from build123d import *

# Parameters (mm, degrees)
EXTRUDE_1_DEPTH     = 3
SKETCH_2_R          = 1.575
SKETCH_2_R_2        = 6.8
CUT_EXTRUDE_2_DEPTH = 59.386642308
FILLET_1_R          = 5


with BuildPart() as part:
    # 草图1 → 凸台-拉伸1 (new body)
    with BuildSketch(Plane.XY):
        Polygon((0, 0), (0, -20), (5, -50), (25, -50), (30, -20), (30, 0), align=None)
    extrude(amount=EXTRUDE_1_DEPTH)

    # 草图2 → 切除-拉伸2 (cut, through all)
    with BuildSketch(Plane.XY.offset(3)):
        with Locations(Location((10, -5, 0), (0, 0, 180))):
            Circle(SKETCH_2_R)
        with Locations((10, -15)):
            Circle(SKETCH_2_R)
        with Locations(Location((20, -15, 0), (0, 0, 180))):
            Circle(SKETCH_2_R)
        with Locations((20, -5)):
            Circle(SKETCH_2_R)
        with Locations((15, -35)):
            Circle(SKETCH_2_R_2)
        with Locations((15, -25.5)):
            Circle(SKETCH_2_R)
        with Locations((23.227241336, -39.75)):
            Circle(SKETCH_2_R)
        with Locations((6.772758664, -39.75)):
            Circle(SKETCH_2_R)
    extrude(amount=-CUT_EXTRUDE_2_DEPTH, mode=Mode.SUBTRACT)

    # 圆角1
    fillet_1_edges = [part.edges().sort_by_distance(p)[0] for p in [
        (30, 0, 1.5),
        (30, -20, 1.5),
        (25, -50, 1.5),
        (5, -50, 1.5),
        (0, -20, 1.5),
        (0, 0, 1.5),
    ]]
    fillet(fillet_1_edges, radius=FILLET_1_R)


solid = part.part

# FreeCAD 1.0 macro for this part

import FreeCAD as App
import Part
import Sketcher
Q = App.Units.Quantity


def edges_at(feature, points):
    """Names of the edges that pass closest to the given points."""
    edges = feature.Shape.Edges
    near = lambda p: min(range(len(edges)), key=lambda i: edges[i].distToShape(Part.Vertex(*p))[0])
    return sorted({f"Edge{near(p) + 1}" for p in points})


def add_polygon(sketch, points):
    """Adds a closed chain of lines whose ends are joined by coincident constraints."""
    first, n = sketch.GeometryCount, len(points)
    for a, b in zip(points, points[1:] + points[:1]):
        sketch.addGeometry(Part.LineSegment(App.Vector(*a, 0), App.Vector(*b, 0)), False)
    for i in range(n):
        sketch.addConstraint(Sketcher.Constraint("Coincident", first + i, 2, first + (i + 1) % n, 1))

doc = App.newDocument("Part")
params = doc.addObject("Spreadsheet::Sheet", "Params")
for row, (alias, value) in enumerate([
    ("sketch1_width", "20 mm"),
    ("sketch1_width2", "30 mm"),
    ("pad1_length", "3 mm"),
    ("sketch2_diameter", "13.6 mm"),
    ("sketch2_diameter2", "3.15 mm"),
    ("fillet_radius", "5 mm"),
], start=1):
    params.set(f"A{row}", alias)
    params.set(f"B{row}", "=" + value)
    params.setAlias(f"B{row}", alias)

body = doc.addObject("PartDesign::Body", "Body")

sketch1 = doc.addObject("Sketcher::SketchObject", "Sketch")
body.addObject(sketch1)
sketch1.AttachmentSupport = (doc.XY_Plane, [""])
sketch1.MapMode = "FlatFace"
add_polygon(sketch1, [(0, 0), (0, -20), (5, -50), (25, -50), (30, -20), (30, 0)])
sketch1.addConstraint([
    Sketcher.Constraint("Vertical", 0),
    Sketcher.Constraint("Horizontal", 2),
    Sketcher.Constraint("Vertical", 4),
    Sketcher.Constraint("Horizontal", 5),
    Sketcher.Constraint("Coincident", 5, 2, -1, 1),
    Sketcher.Constraint("Horizontal", 0, 2, 3, 2),
    Sketcher.Constraint("Equal", 2, 0),
    Sketcher.Constraint("Equal", 1, 3),
    Sketcher.Constraint("DistanceX", 2, 1, 2, 2, Q("20 mm")),
    Sketcher.Constraint("DistanceX", 5, 2, 5, 1, Q("30 mm")),
    Sketcher.Constraint("DistanceY", 1, 2, -1, 1, Q("50 mm")),
])
sketch1.setExpression("Constraints[14]", "Params.sketch1_width")
sketch1.setExpression("Constraints[15]", "Params.sketch1_width2")
pad1 = doc.addObject("PartDesign::Pad", "Pad")
body.addObject(pad1)
pad1.Profile = sketch1
pad1.setExpression("Length", "Params.pad1_length")

sketch2 = doc.addObject("Sketcher::SketchObject", "Sketch001")
body.addObject(sketch2)
sketch2.AttachmentSupport = (doc.XY_Plane, [""])
sketch2.MapMode = "FlatFace"
sketch2.AttachmentOffset = App.Placement(App.Vector(0, 0, 3), App.Rotation())
sketch2.addGeometry([
    Part.Circle(App.Vector(10, -5, 0), App.Vector(0, 0, 1), 1.575),
    Part.Circle(App.Vector(10, -15, 0), App.Vector(0, 0, 1), 1.575),
    Part.Circle(App.Vector(20, -15, 0), App.Vector(0, 0, 1), 1.575),
    Part.Circle(App.Vector(20, -5, 0), App.Vector(0, 0, 1), 1.575),
    Part.Circle(App.Vector(15, -35, 0), App.Vector(0, 0, 1), 6.8),
    Part.Circle(App.Vector(15, -25.5, 0), App.Vector(0, 0, 1), 1.575),
    Part.Circle(App.Vector(23.227241, -39.75, 0), App.Vector(0, 0, 1), 1.575),
    Part.Circle(App.Vector(6.772759, -39.75, 0), App.Vector(0, 0, 1), 1.575),
], False)
sketch2.addConstraint([
    Sketcher.Constraint("Equal", 0, 1),
    Sketcher.Constraint("Equal", 1, 2),
    Sketcher.Constraint("Equal", 2, 3),
    Sketcher.Constraint("Equal", 3, 5),
    Sketcher.Constraint("Equal", 5, 6),
    Sketcher.Constraint("Equal", 6, 7),
    Sketcher.Constraint("Horizontal", 1, 3, 2, 3),
    Sketcher.Constraint("Horizontal", 0, 3, 3, 3),
    Sketcher.Constraint("Horizontal", 6, 3, 7, 3),
    Sketcher.Constraint("Vertical", 0, 3, 1, 3),
    Sketcher.Constraint("Vertical", 2, 3, 3, 3),
    Sketcher.Constraint("Vertical", 4, 3, 5, 3),
    Sketcher.Constraint("Diameter", 4, Q("13.6 mm")),
    Sketcher.Constraint("Diameter", 0, Q("3.15 mm")),
    Sketcher.Constraint("DistanceX", -1, 1, 0, 3, Q("10 mm")),
    Sketcher.Constraint("DistanceY", 0, 3, -1, 1, Q("5 mm")),
    Sketcher.Constraint("DistanceY", 1, 3, -1, 1, Q("15 mm")),
    Sketcher.Constraint("DistanceX", -1, 1, 2, 3, Q("20 mm")),
    Sketcher.Constraint("DistanceX", -1, 1, 4, 3, Q("15 mm")),
    Sketcher.Constraint("DistanceY", 4, 3, -1, 1, Q("35 mm")),
    Sketcher.Constraint("DistanceY", 5, 3, -1, 1, Q("25.5 mm")),
    Sketcher.Constraint("DistanceY", 6, 3, -1, 1, Q("39.75 mm")),
    Sketcher.Constraint("DistanceX", -1, 1, 6, 3, Q("23.227241 mm")),
    Sketcher.Constraint("DistanceX", -1, 1, 7, 3, Q("6.772759 mm")),
])
sketch2.setExpression("Constraints[12]", "Params.sketch2_diameter")
sketch2.setExpression("Constraints[13]", "Params.sketch2_diameter2")
pocket1 = doc.addObject("PartDesign::Pocket", "Pocket")
body.addObject(pocket1)
pocket1.Profile = sketch2
pocket1.Type = "ThroughAll"
doc.recompute()

fillet = doc.addObject("PartDesign::Fillet", "Fillet")
body.addObject(fillet)
fillet.Base = (pocket1, edges_at(pocket1, [
    (30, 0, 1.5),
    (30, -20, 1.5),
    (25, -50, 1.5),
    (5, -50, 1.5),
    (0, -20, 1.5),
    (0, 0, 1.5),
]))
fillet.setExpression("Radius", "Params.fillet_radius")

doc.recompute()
